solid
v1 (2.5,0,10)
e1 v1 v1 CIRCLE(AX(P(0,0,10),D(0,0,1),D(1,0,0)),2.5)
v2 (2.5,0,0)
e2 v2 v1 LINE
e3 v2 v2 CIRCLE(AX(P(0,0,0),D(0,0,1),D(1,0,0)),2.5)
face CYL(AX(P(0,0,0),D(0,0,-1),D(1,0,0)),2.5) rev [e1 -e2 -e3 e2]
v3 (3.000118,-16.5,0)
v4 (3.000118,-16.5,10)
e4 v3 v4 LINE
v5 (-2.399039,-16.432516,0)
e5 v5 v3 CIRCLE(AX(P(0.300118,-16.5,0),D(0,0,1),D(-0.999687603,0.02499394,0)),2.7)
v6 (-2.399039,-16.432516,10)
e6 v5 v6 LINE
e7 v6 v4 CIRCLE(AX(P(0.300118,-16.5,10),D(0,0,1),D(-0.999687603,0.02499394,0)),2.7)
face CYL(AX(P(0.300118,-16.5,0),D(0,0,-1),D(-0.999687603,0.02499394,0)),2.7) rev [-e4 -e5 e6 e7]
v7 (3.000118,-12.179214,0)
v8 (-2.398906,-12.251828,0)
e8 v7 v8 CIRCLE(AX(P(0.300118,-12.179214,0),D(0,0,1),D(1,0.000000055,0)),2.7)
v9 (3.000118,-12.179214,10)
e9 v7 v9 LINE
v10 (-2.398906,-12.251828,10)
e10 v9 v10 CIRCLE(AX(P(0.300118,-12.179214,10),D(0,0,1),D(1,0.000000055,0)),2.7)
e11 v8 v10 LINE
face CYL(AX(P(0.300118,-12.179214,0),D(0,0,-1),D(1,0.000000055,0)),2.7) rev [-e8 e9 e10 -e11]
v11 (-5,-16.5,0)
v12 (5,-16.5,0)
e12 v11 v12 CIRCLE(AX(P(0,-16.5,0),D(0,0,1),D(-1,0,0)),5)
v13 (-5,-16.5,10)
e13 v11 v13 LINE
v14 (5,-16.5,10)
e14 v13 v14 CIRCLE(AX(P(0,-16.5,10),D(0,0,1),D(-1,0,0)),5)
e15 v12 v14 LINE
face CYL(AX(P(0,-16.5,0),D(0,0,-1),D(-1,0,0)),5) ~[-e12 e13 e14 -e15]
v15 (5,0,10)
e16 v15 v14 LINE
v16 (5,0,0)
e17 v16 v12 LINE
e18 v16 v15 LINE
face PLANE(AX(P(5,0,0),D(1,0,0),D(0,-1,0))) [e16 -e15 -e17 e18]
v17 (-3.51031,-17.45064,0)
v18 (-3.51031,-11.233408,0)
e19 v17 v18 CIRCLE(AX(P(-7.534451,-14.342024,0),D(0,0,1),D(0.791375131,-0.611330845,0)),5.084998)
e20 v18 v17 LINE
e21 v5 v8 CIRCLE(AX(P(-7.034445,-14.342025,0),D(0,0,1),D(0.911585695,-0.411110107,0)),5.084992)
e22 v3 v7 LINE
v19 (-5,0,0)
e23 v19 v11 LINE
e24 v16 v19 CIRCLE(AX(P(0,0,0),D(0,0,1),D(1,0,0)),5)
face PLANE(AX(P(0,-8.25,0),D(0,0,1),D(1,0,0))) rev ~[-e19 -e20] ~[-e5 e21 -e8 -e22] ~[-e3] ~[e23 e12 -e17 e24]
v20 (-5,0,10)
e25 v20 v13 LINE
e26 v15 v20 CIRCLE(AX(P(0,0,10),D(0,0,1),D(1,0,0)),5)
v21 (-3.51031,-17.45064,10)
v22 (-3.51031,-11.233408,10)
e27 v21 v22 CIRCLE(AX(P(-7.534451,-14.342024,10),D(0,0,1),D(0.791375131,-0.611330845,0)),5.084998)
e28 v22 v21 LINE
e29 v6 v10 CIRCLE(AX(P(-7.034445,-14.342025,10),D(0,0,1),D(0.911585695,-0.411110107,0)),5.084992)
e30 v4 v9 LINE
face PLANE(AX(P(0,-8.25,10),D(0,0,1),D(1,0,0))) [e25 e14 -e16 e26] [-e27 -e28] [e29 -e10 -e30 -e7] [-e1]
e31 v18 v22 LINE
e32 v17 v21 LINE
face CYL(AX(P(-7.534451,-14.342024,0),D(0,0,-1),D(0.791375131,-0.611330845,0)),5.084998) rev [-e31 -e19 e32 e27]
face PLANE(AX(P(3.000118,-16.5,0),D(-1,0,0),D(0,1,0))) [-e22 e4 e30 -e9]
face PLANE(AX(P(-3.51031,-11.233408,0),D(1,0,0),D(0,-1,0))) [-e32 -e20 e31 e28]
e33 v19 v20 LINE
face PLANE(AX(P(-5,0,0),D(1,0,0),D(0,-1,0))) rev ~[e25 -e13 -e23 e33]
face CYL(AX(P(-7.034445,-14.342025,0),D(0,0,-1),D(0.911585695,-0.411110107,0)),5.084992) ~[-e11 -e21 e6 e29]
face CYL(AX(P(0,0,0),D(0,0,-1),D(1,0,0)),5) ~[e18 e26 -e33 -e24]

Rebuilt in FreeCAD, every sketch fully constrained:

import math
import FreeCAD as App
import Part
import Sketcher
from FreeCAD import Vector

doc = App.newDocument("Part")
params = doc.addObject("Spreadsheet::Sheet", "Params")
for row, (alias, value) in enumerate([
    ("sketch1_diameter", "5 mm"),
    ("sketch1_radius", "5 mm"),
    ("sketch1_radius2", "2.7 mm"),
    ("sketch1_height", "16.5 mm"),
    ("pad1_length", "10 mm"),
], start=1):
    params.set(f"A{row}", alias)
    params.set(f"B{row}", "=" + value)
    params.setAlias(f"B{row}", alias)

body = doc.addObject("PartDesign::Body", "Body")

sketch1 = doc.addObject("Sketcher::SketchObject", "Sketch")
body.addObject(sketch1)
sketch1.AttachmentSupport = (doc.XY_Plane, [""])
sketch1.MapMode = "FlatFace"
sketch1.addGeometry([
    Part.ArcOfCircle(Part.Circle(Vector(0, 0, 0), Vector(0, 0, 1), 5), math.radians(0), math.radians(180)),
    Part.LineSegment(Vector(-5, 0, 0), Vector(-5, -16.5, 0)),
    Part.ArcOfCircle(Part.Circle(Vector(0, -16.5, 0), Vector(0, 0, 1), 5), math.radians(180), math.radians(360)),
    Part.LineSegment(Vector(5, -16.5, 0), Vector(5, 0, 0)),
    Part.ArcOfCircle(Part.Circle(Vector(-7.5, -14.3, 0), Vector(0, 0, 1), 5.1), math.radians(-38), math.radians(38)),
    Part.LineSegment(Vector(-3.5, -17.5, 0), Vector(-3.5, -11.2, 0)),
    Part.ArcOfCircle(Part.Circle(Vector(0.3, -16.5, 0), Vector(0, 0, 1), 2.7), math.radians(179), math.radians(360)),
    Part.ArcOfCircle(Part.Circle(Vector(-7, -14.3, 0), Vector(0, 0, 1), 5.1), math.radians(-24), math.radians(24)),
    Part.ArcOfCircle(Part.Circle(Vector(0.3, -12.2, 0), Vector(0, 0, 1), 2.7), math.radians(0), math.radians(182)),
    Part.LineSegment(Vector(3, -12.2, 0), Vector(3, -16.5, 0)),
    Part.Circle(Vector(0, 0, 0), Vector(0, 0, 1), 2.5),
], False)
sketch1.addConstraint([
    Sketcher.Constraint("Tangent", 0, 2, 1, 1),
    Sketcher.Constraint("Tangent", 1, 2, 2, 1),
    Sketcher.Constraint("Tangent", 2, 2, 3, 1),
    Sketcher.Constraint("Tangent", 3, 2, 0, 1),
    Sketcher.Constraint("Coincident", 4, 1, 5, 1),
    Sketcher.Constraint("Coincident", 5, 2, 4, 2),
    Sketcher.Constraint("Coincident", 6, 1, 7, 1),
    Sketcher.Constraint("Coincident", 7, 2, 8, 2),
    Sketcher.Constraint("Tangent", 8, 1, 9, 1),
    Sketcher.Constraint("Tangent", 9, 2, 6, 2),
    Sketcher.Constraint("Vertical", 1),
    Sketcher.Constraint("Vertical", 3),
    Sketcher.Constraint("Vertical", 5),
    Sketcher.Constraint("Vertical", 9),
    Sketcher.Constraint("Coincident", 0, 3, -1, 1),
    Sketcher.Constraint("Coincident", 10, 3, -1, 1),
    Sketcher.Constraint("Equal", 6, 8),
    Sketcher.Constraint("Horizontal", 2, 3, 6, 3),
    Sketcher.Constraint("Horizontal", 4, 3, 7, 3),
    Sketcher.Constraint("Diameter", 10, 5.0),
    Sketcher.Constraint("Radius", 0, 5.0),
    Sketcher.Constraint("Radius", 6, 2.7),
    Sketcher.Constraint("DistanceY", 1, 2, 1, 1, 16.5),
    Sketcher.Constraint("Radius", 7, 5.084992),
    Sketcher.Constraint("Radius", 4, 5.084998),
    Sketcher.Constraint("DistanceY", 5, 1, 5, 2, 6.217232),
    Sketcher.Constraint("DistanceY", 6, 1, 8, 3, 4.253302),
    Sketcher.Constraint("DistanceY", 9, 2, 9, 1, 4.320786),
    Sketcher.Constraint("DistanceX", 4, 3, -1, 1, 7.534451),
    Sketcher.Constraint("DistanceY", 4, 1, -1, 1, 17.45064),
    Sketcher.Constraint("DistanceX", 6, 1, -1, 1, 2.399039),
])
sketch1.setExpression("Constraints[19]", "Params.sketch1_diameter")
sketch1.setExpression("Constraints[20]", "Params.sketch1_radius")
sketch1.setExpression("Constraints[21]", "Params.sketch1_radius2")
sketch1.setExpression("Constraints[22]", "Params.sketch1_height")
pad1 = doc.addObject("PartDesign::Pad", "Pad")
body.addObject(pad1)
pad1.Profile = sketch1
pad1.setExpression("Length", "Params.pad1_length")

doc.recompute()
